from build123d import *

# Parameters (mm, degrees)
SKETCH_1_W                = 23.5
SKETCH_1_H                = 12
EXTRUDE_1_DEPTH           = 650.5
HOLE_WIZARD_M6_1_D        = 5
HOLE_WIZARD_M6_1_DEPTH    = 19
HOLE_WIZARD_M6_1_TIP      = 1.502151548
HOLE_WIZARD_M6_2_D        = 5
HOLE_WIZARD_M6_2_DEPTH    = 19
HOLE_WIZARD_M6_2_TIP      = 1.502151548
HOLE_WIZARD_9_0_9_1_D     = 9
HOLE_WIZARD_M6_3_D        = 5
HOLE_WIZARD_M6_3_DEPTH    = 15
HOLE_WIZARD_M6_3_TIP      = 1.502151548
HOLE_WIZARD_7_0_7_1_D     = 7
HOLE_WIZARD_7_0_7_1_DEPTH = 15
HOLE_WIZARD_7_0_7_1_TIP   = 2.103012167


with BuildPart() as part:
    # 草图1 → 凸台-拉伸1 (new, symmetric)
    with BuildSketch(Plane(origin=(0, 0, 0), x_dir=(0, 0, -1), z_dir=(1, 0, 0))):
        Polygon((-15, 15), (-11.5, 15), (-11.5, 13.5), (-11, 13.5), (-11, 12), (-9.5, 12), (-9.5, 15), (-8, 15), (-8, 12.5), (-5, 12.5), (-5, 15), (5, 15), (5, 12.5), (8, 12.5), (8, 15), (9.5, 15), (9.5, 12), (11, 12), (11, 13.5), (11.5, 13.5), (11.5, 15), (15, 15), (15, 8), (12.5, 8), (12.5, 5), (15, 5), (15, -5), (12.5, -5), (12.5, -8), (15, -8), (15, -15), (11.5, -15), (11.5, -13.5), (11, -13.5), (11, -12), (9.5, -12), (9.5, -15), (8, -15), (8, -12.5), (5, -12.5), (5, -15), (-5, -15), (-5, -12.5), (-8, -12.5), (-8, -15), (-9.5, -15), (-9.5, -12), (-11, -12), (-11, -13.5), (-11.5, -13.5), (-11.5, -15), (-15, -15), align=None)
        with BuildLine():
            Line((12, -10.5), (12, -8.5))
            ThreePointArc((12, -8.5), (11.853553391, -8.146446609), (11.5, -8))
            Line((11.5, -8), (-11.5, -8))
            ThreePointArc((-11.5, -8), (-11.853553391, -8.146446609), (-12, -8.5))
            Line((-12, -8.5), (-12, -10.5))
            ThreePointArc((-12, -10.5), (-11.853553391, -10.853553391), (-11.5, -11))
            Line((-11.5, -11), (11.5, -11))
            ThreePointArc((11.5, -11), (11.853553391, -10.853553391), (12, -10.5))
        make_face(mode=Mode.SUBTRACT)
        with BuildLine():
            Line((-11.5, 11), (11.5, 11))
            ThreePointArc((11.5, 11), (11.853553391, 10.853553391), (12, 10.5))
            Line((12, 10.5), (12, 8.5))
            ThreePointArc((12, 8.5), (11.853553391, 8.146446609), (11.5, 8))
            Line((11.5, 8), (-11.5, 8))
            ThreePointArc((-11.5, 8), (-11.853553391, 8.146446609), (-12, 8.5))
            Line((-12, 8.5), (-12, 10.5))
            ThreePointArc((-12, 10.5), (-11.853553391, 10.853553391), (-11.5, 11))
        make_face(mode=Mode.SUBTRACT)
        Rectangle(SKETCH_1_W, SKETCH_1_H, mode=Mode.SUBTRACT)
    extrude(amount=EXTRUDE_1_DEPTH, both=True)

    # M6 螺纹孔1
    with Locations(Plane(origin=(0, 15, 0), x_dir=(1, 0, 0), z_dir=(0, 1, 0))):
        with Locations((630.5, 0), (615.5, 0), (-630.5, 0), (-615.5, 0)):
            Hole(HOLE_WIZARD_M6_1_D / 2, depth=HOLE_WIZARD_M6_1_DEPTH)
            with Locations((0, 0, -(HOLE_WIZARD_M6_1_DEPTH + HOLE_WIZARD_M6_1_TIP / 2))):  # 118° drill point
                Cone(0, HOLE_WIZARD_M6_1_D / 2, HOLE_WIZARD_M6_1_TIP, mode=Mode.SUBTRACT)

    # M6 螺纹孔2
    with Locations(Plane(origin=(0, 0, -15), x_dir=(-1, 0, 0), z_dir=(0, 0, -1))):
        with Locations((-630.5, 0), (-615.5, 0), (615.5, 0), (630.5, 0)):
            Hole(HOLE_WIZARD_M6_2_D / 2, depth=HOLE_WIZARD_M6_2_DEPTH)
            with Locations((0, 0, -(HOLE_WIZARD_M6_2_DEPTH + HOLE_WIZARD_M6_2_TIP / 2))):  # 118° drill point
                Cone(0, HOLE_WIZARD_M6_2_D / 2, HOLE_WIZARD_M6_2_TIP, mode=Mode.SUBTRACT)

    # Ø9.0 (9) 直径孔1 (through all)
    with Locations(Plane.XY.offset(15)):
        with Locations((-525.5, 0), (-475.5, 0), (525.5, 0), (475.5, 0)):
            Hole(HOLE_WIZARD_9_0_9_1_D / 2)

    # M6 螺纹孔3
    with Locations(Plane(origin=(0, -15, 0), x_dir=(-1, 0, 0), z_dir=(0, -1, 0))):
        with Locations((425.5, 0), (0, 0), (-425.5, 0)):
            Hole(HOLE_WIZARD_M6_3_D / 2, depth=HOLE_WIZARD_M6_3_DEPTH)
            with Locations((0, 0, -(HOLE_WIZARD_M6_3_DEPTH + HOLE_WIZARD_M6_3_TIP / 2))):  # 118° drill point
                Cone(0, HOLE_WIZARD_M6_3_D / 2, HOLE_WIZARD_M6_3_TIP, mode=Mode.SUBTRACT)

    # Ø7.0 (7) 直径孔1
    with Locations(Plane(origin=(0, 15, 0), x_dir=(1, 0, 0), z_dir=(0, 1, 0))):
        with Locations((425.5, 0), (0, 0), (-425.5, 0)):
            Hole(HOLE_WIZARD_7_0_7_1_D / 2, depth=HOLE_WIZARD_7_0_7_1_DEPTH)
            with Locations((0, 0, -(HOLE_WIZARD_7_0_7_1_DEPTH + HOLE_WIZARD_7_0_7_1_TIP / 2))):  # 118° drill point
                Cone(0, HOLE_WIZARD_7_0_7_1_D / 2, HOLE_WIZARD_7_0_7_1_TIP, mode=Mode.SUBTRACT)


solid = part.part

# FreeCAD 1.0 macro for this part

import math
import FreeCAD as App
import Part
import Sketcher

V = App.Vector

doc = App.newDocument("Part")
body = doc.addObject("PartDesign::Body", "Body")

# Sketch on YZ plane
sketch1 = body.newObject("Sketcher::SketchObject", "Sketch")
sketch1.AttachmentSupport = (doc.getObject("YZ_Plane"), [""])
sketch1.MapMode = "FlatFace"
sketch1.addGeometry(Part.LineSegment(V(15, 11.5, 0), V(15, 15, 0)), False)
sketch1.addGeometry(Part.LineSegment(V(15, 15, 0), V(-15, 15, 0)), False)
sketch1.addGeometry(Part.LineSegment(V(-15, 15, 0), V(-15, 11.5, 0)), False)
sketch1.addGeometry(Part.LineSegment(V(-15, 11.5, 0), V(-13.5, 11.5, 0)), False)
sketch1.addGeometry(Part.LineSegment(V(-13.5, 11.5, 0), V(-13.5, 11, 0)), False)
sketch1.addGeometry(Part.LineSegment(V(-13.5, 11, 0), V(-12, 11, 0)), False)
sketch1.addGeometry(Part.LineSegment(V(-12, 11, 0), V(-12, 9.5, 0)), False)
sketch1.addGeometry(Part.LineSegment(V(-12, 9.5, 0), V(-15, 9.5, 0)), False)
sketch1.addGeometry(Part.LineSegment(V(-15, 9.5, 0), V(-15, 8, 0)), False)
sketch1.addGeometry(Part.LineSegment(V(-15, 8, 0), V(-12.5, 8, 0)), False)
sketch1.addGeometry(Part.LineSegment(V(-12.5, 8, 0), V(-12.5, 5, 0)), False)
sketch1.addGeometry(Part.LineSegment(V(-12.5, 5, 0), V(-15, 5, 0)), False)
sketch1.addGeometry(Part.LineSegment(V(-15, 5, 0), V(-15, -5, 0)), False)
sketch1.addGeometry(Part.LineSegment(V(-15, -5, 0), V(-12.5, -5, 0)), False)
sketch1.addGeometry(Part.LineSegment(V(-12.5, -5, 0), V(-12.5, -8, 0)), False)
sketch1.addGeometry(Part.LineSegment(V(-12.5, -8, 0), V(-15, -8, 0)), False)
sketch1.addGeometry(Part.LineSegment(V(-15, -8, 0), V(-15, -9.5, 0)), False)
sketch1.addGeometry(Part.LineSegment(V(-15, -9.5, 0), V(-12, -9.5, 0)), False)
sketch1.addGeometry(Part.LineSegment(V(-12, -9.5, 0), V(-12, -11, 0)), False)
sketch1.addGeometry(Part.LineSegment(V(-12, -11, 0), V(-13.5, -11, 0)), False)
sketch1.addGeometry(Part.LineSegment(V(-13.5, -11, 0), V(-13.5, -11.5, 0)), False)
sketch1.addGeometry(Part.LineSegment(V(-13.5, -11.5, 0), V(-15, -11.5, 0)), False)
sketch1.addGeometry(Part.LineSegment(V(-15, -11.5, 0), V(-15, -15, 0)), False)
sketch1.addGeometry(Part.LineSegment(V(-15, -15, 0), V(-8, -15, 0)), False)
sketch1.addGeometry(Part.LineSegment(V(-8, -15, 0), V(-8, -12.5, 0)), False)
sketch1.addGeometry(Part.LineSegment(V(-8, -12.5, 0), V(-5, -12.5, 0)), False)
sketch1.addGeometry(Part.LineSegment(V(-5, -12.5, 0), V(-5, -15, 0)), False)
sketch1.addGeometry(Part.LineSegment(V(-5, -15, 0), V(5, -15, 0)), False)
sketch1.addGeometry(Part.LineSegment(V(5, -15, 0), V(5, -12.5, 0)), False)
sketch1.addGeometry(Part.LineSegment(V(5, -12.5, 0), V(8, -12.5, 0)), False)
sketch1.addGeometry(Part.LineSegment(V(8, -12.5, 0), V(8, -15, 0)), False)
sketch1.addGeometry(Part.LineSegment(V(8, -15, 0), V(15, -15, 0)), False)
sketch1.addGeometry(Part.LineSegment(V(15, -15, 0), V(15, -11.5, 0)), False)
sketch1.addGeometry(Part.LineSegment(V(15, -11.5, 0), V(13.5, -11.5, 0)), False)
sketch1.addGeometry(Part.LineSegment(V(13.5, -11.5, 0), V(13.5, -11, 0)), False)
sketch1.addGeometry(Part.LineSegment(V(13.5, -11, 0), V(12, -11, 0)), False)
sketch1.addGeometry(Part.LineSegment(V(12, -11, 0), V(12, -9.5, 0)), False)
sketch1.addGeometry(Part.LineSegment(V(12, -9.5, 0), V(15, -9.5, 0)), False)
sketch1.addGeometry(Part.LineSegment(V(15, -9.5, 0), V(15, -8, 0)), False)
sketch1.addGeometry(Part.LineSegment(V(15, -8, 0), V(12.5, -8, 0)), False)
sketch1.addGeometry(Part.LineSegment(V(12.5, -8, 0), V(12.5, -5, 0)), False)
sketch1.addGeometry(Part.LineSegment(V(12.5, -5, 0), V(15, -5, 0)), False)
sketch1.addGeometry(Part.LineSegment(V(15, -5, 0), V(15, 5, 0)), False)
sketch1.addGeometry(Part.LineSegment(V(15, 5, 0), V(12.5, 5, 0)), False)
sketch1.addGeometry(Part.LineSegment(V(12.5, 5, 0), V(12.5, 8, 0)), False)
sketch1.addGeometry(Part.LineSegment(V(12.5, 8, 0), V(15, 8, 0)), False)
sketch1.addGeometry(Part.LineSegment(V(15, 8, 0), V(15, 9.5, 0)), False)
sketch1.addGeometry(Part.LineSegment(V(15, 9.5, 0), V(12, 9.5, 0)), False)
sketch1.addGeometry(Part.LineSegment(V(12, 9.5, 0), V(12, 11, 0)), False)
sketch1.addGeometry(Part.LineSegment(V(12, 11, 0), V(13.5, 11, 0)), False)
sketch1.addGeometry(Part.LineSegment(V(13.5, 11, 0), V(13.5, 11.5, 0)), False)
sketch1.addGeometry(Part.LineSegment(V(13.5, 11.5, 0), V(15, 11.5, 0)), False)
sketch1.addGeometry(Part.ArcOfCircle(Part.Circle(V(-10.5, -11.5, 0), V(0, 0, 1), 0.5), math.radians(180), math.radians(270)), False)
sketch1.addGeometry(Part.LineSegment(V(-11, -11.5, 0), V(-11, 11.5, 0)), False)
sketch1.addGeometry(Part.ArcOfCircle(Part.Circle(V(-10.5, 11.5, 0), V(0, 0, 1), 0.5), math.radians(90), math.radians(180)), False)
sketch1.addGeometry(Part.LineSegment(V(-10.5, 12, 0), V(-8.5, 12, 0)), False)
sketch1.addGeometry(Part.ArcOfCircle(Part.Circle(V(-8.5, 11.5, 0), V(0, 0, 1), 0.5), math.radians(0), math.radians(90)), False)
sketch1.addGeometry(Part.LineSegment(V(-8, 11.5, 0), V(-8, -11.5, 0)), False)
sketch1.addGeometry(Part.ArcOfCircle(Part.Circle(V(-8.5, -11.5, 0), V(0, 0, 1), 0.5), math.radians(-90), math.radians(0)), False)
sketch1.addGeometry(Part.LineSegment(V(-8.5, -12, 0), V(-10.5, -12, 0)), False)
sketch1.addGeometry(Part.LineSegment(V(-6, 11.75, 0), V(6, 11.75, 0)), False)
sketch1.addGeometry(Part.LineSegment(V(6, 11.75, 0), V(6, -11.75, 0)), False)
sketch1.addGeometry(Part.LineSegment(V(6, -11.75, 0), V(-6, -11.75, 0)), False)
sketch1.addGeometry(Part.LineSegment(V(-6, -11.75, 0), V(-6, 11.75, 0)), False)
sketch1.addGeometry(Part.LineSegment(V(11, 11.5, 0), V(11, -11.5, 0)), False)
sketch1.addGeometry(Part.ArcOfCircle(Part.Circle(V(10.5, -11.5, 0), V(0, 0, 1), 0.5), math.radians(-90), math.radians(0)), False)
sketch1.addGeometry(Part.LineSegment(V(10.5, -12, 0), V(8.5, -12, 0)), False)
sketch1.addGeometry(Part.ArcOfCircle(Part.Circle(V(8.5, -11.5, 0), V(0, 0, 1), 0.5), math.radians(180), math.radians(270)), False)
sketch1.addGeometry(Part.LineSegment(V(8, -11.5, 0), V(8, 11.5, 0)), False)
sketch1.addGeometry(Part.ArcOfCircle(Part.Circle(V(8.5, 11.5, 0), V(0, 0, 1), 0.5), math.radians(90), math.radians(180)), False)
sketch1.addGeometry(Part.LineSegment(V(8.5, 12, 0), V(10.5, 12, 0)), False)
sketch1.addGeometry(Part.ArcOfCircle(Part.Circle(V(10.5, 11.5, 0), V(0, 0, 1), 0.5), math.radians(0), math.radians(90)), False)
sketch1.addConstraint(Sketcher.Constraint("Coincident", 0, 2, 1, 1))
sketch1.addConstraint(Sketcher.Constraint("Coincident", 1, 2, 2, 1))
sketch1.addConstraint(Sketcher.Constraint("Coincident", 2, 2, 3, 1))
sketch1.addConstraint(Sketcher.Constraint("Coincident", 3, 2, 4, 1))
sketch1.addConstraint(Sketcher.Constraint("Coincident", 4, 2, 5, 1))
sketch1.addConstraint(Sketcher.Constraint("Coincident", 5, 2, 6, 1))
sketch1.addConstraint(Sketcher.Constraint("Coincident", 6, 2, 7, 1))
sketch1.addConstraint(Sketcher.Constraint("Coincident", 7, 2, 8, 1))
sketch1.addConstraint(Sketcher.Constraint("Coincident", 8, 2, 9, 1))
sketch1.addConstraint(Sketcher.Constraint("Coincident", 9, 2, 10, 1))
sketch1.addConstraint(Sketcher.Constraint("Coincident", 10, 2, 11, 1))
sketch1.addConstraint(Sketcher.Constraint("Coincident", 11, 2, 12, 1))
sketch1.addConstraint(Sketcher.Constraint("Coincident", 12, 2, 13, 1))
sketch1.addConstraint(Sketcher.Constraint("Coincident", 13, 2, 14, 1))
sketch1.addConstraint(Sketcher.Constraint("Coincident", 14, 2, 15, 1))
sketch1.addConstraint(Sketcher.Constraint("Coincident", 15, 2, 16, 1))
sketch1.addConstraint(Sketcher.Constraint("Coincident", 16, 2, 17, 1))
sketch1.addConstraint(Sketcher.Constraint("Coincident", 17, 2, 18, 1))
sketch1.addConstraint(Sketcher.Constraint("Coincident", 18, 2, 19, 1))
sketch1.addConstraint(Sketcher.Constraint("Coincident", 19, 2, 20, 1))
sketch1.addConstraint(Sketcher.Constraint("Coincident", 20, 2, 21, 1))
sketch1.addConstraint(Sketcher.Constraint("Coincident", 21, 2, 22, 1))
sketch1.addConstraint(Sketcher.Constraint("Coincident", 22, 2, 23, 1))
sketch1.addConstraint(Sketcher.Constraint("Coincident", 23, 2, 24, 1))
sketch1.addConstraint(Sketcher.Constraint("Coincident", 24, 2, 25, 1))
sketch1.addConstraint(Sketcher.Constraint("Coincident", 25, 2, 26, 1))
sketch1.addConstraint(Sketcher.Constraint("Coincident", 26, 2, 27, 1))
sketch1.addConstraint(Sketcher.Constraint("Coincident", 27, 2, 28, 1))
sketch1.addConstraint(Sketcher.Constraint("Coincident", 28, 2, 29, 1))
sketch1.addConstraint(Sketcher.Constraint("Coincident", 29, 2, 30, 1))
sketch1.addConstraint(Sketcher.Constraint("Coincident", 30, 2, 31, 1))
sketch1.addConstraint(Sketcher.Constraint("Coincident", 31, 2, 32, 1))
sketch1.addConstraint(Sketcher.Constraint("Coincident", 32, 2, 33, 1))
sketch1.addConstraint(Sketcher.Constraint("Coincident", 33, 2, 34, 1))
sketch1.addConstraint(Sketcher.Constraint("Coincident", 34, 2, 35, 1))
sketch1.addConstraint(Sketcher.Constraint("Coincident", 35, 2, 36, 1))
sketch1.addConstraint(Sketcher.Constraint("Coincident", 36, 2, 37, 1))
sketch1.addConstraint(Sketcher.Constraint("Coincident", 37, 2, 38, 1))
sketch1.addConstraint(Sketcher.Constraint("Coincident", 38, 2, 39, 1))
sketch1.addConstraint(Sketcher.Constraint("Coincident", 39, 2, 40, 1))
sketch1.addConstraint(Sketcher.Constraint("Coincident", 40, 2, 41, 1))
sketch1.addConstraint(Sketcher.Constraint("Coincident", 41, 2, 42, 1))
sketch1.addConstraint(Sketcher.Constraint("Coincident", 42, 2, 43, 1))
sketch1.addConstraint(Sketcher.Constraint("Coincident", 43, 2, 44, 1))
sketch1.addConstraint(Sketcher.Constraint("Coincident", 44, 2, 45, 1))
sketch1.addConstraint(Sketcher.Constraint("Coincident", 45, 2, 46, 1))
sketch1.addConstraint(Sketcher.Constraint("Coincident", 46, 2, 47, 1))
sketch1.addConstraint(Sketcher.Constraint("Coincident", 47, 2, 48, 1))
sketch1.addConstraint(Sketcher.Constraint("Coincident", 48, 2, 49, 1))
sketch1.addConstraint(Sketcher.Constraint("Coincident", 49, 2, 50, 1))
sketch1.addConstraint(Sketcher.Constraint("Coincident", 50, 2, 51, 1))
sketch1.addConstraint(Sketcher.Constraint("Coincident", 51, 2, 0, 1))
sketch1.addConstraint(Sketcher.Constraint("Tangent", 52, 1, 53, 1))
sketch1.addConstraint(Sketcher.Constraint("Tangent", 53, 2, 54, 2))
sketch1.addConstraint(Sketcher.Constraint("Tangent", 54, 1, 55, 1))
sketch1.addConstraint(Sketcher.Constraint("Tangent", 55, 2, 56, 2))
sketch1.addConstraint(Sketcher.Constraint("Tangent", 56, 1, 57, 1))
sketch1.addConstraint(Sketcher.Constraint("Tangent", 57, 2, 58, 2))
sketch1.addConstraint(Sketcher.Constraint("Tangent", 58, 1, 59, 1))
sketch1.addConstraint(Sketcher.Constraint("Tangent", 59, 2, 52, 2))
sketch1.addConstraint(Sketcher.Constraint("Coincident", 60, 2, 61, 1))
sketch1.addConstraint(Sketcher.Constraint("Coincident", 61, 2, 62, 1))
sketch1.addConstraint(Sketcher.Constraint("Coincident", 62, 2, 63, 1))
sketch1.addConstraint(Sketcher.Constraint("Coincident", 63, 2, 60, 1))
sketch1.addConstraint(Sketcher.Constraint("Tangent", 64, 2, 65, 2))
sketch1.addConstraint(Sketcher.Constraint("Tangent", 65, 1, 66, 1))
sketch1.addConstraint(Sketcher.Constraint("Tangent", 66, 2, 67, 2))
sketch1.addConstraint(Sketcher.Constraint("Tangent", 67, 1, 68, 1))
sketch1.addConstraint(Sketcher.Constraint("Tangent", 68, 2, 69, 2))
sketch1.addConstraint(Sketcher.Constraint("Tangent", 69, 1, 70, 1))
sketch1.addConstraint(Sketcher.Constraint("Tangent", 70, 2, 71, 2))
sketch1.addConstraint(Sketcher.Constraint("Tangent", 71, 1, 64, 1))
sketch1.addConstraint(Sketcher.Constraint("Vertical", 0))
sketch1.addConstraint(Sketcher.Constraint("Horizontal", 1))
sketch1.addConstraint(Sketcher.Constraint("Vertical", 2))
sketch1.addConstraint(Sketcher.Constraint("Horizontal", 3))
sketch1.addConstraint(Sketcher.Constraint("Vertical", 4))
sketch1.addConstraint(Sketcher.Constraint("Horizontal", 5))
sketch1.addConstraint(Sketcher.Constraint("Vertical", 6))
sketch1.addConstraint(Sketcher.Constraint("Horizontal", 7))
sketch1.addConstraint(Sketcher.Constraint("Vertical", 8))
sketch1.addConstraint(Sketcher.Constraint("Horizontal", 9))
sketch1.addConstraint(Sketcher.Constraint("Vertical", 10))
sketch1.addConstraint(Sketcher.Constraint("Horizontal", 11))
sketch1.addConstraint(Sketcher.Constraint("Vertical", 12))
sketch1.addConstraint(Sketcher.Constraint("Horizontal", 13))
sketch1.addConstraint(Sketcher.Constraint("Vertical", 14))
sketch1.addConstraint(Sketcher.Constraint("Horizontal", 15))
sketch1.addConstraint(Sketcher.Constraint("Vertical", 16))
sketch1.addConstraint(Sketcher.Constraint("Horizontal", 17))
sketch1.addConstraint(Sketcher.Constraint("Vertical", 18))
sketch1.addConstraint(Sketcher.Constraint("Horizontal", 19))
sketch1.addConstraint(Sketcher.Constraint("Vertical", 20))
sketch1.addConstraint(Sketcher.Constraint("Horizontal", 21))
sketch1.addConstraint(Sketcher.Constraint("Vertical", 22))
sketch1.addConstraint(Sketcher.Constraint("Horizontal", 23))
sketch1.addConstraint(Sketcher.Constraint("Vertical", 24))
sketch1.addConstraint(Sketcher.Constraint("Horizontal", 25))
sketch1.addConstraint(Sketcher.Constraint("Vertical", 26))
sketch1.addConstraint(Sketcher.Constraint("Horizontal", 27))
sketch1.addConstraint(Sketcher.Constraint("Vertical", 28))
sketch1.addConstraint(Sketcher.Constraint("Horizontal", 29))
sketch1.addConstraint(Sketcher.Constraint("Vertical", 30))
sketch1.addConstraint(Sketcher.Constraint("Horizontal", 31))
sketch1.addConstraint(Sketcher.Constraint("Vertical", 32))
sketch1.addConstraint(Sketcher.Constraint("Horizontal", 33))
sketch1.addConstraint(Sketcher.Constraint("Vertical", 34))
sketch1.addConstraint(Sketcher.Constraint("Horizontal", 35))
sketch1.addConstraint(Sketcher.Constraint("Vertical", 36))
sketch1.addConstraint(Sketcher.Constraint("Horizontal", 37))
sketch1.addConstraint(Sketcher.Constraint("Vertical", 38))
sketch1.addConstraint(Sketcher.Constraint("Horizontal", 39))
sketch1.addConstraint(Sketcher.Constraint("Vertical", 40))
sketch1.addConstraint(Sketcher.Constraint("Horizontal", 41))
sketch1.addConstraint(Sketcher.Constraint("Vertical", 42))
sketch1.addConstraint(Sketcher.Constraint("Horizontal", 43))
sketch1.addConstraint(Sketcher.Constraint("Vertical", 44))
sketch1.addConstraint(Sketcher.Constraint("Horizontal", 45))
sketch1.addConstraint(Sketcher.Constraint("Vertical", 46))
sketch1.addConstraint(Sketcher.Constraint("Horizontal", 47))
sketch1.addConstraint(Sketcher.Constraint("Vertical", 48))
sketch1.addConstraint(Sketcher.Constraint("Horizontal", 49))
sketch1.addConstraint(Sketcher.Constraint("Vertical", 50))
sketch1.addConstraint(Sketcher.Constraint("Horizontal", 51))
sketch1.addConstraint(Sketcher.Constraint("Vertical", 53))
sketch1.addConstraint(Sketcher.Constraint("Horizontal", 55))
sketch1.addConstraint(Sketcher.Constraint("Vertical", 57))
sketch1.addConstraint(Sketcher.Constraint("Horizontal", 59))
sketch1.addConstraint(Sketcher.Constraint("Horizontal", 60))
sketch1.addConstraint(Sketcher.Constraint("Vertical", 61))
sketch1.addConstraint(Sketcher.Constraint("Horizontal", 62))
sketch1.addConstraint(Sketcher.Constraint("Vertical", 63))
sketch1.addConstraint(Sketcher.Constraint("Vertical", 64))
sketch1.addConstraint(Sketcher.Constraint("Horizontal", 66))
sketch1.addConstraint(Sketcher.Constraint("Vertical", 68))
sketch1.addConstraint(Sketcher.Constraint("Horizontal", 70))
sketch1.addConstraint(Sketcher.Constraint("Equal", 52, 54))
sketch1.addConstraint(Sketcher.Constraint("Equal", 54, 56))
sketch1.addConstraint(Sketcher.Constraint("Equal", 56, 58))
sketch1.addConstraint(Sketcher.Constraint("Equal", 58, 65))
sketch1.addConstraint(Sketcher.Constraint("Equal", 65, 67))
sketch1.addConstraint(Sketcher.Constraint("Equal", 67, 69))
sketch1.addConstraint(Sketcher.Constraint("Equal", 69, 71))
sketch1.addConstraint(Sketcher.Constraint("Symmetric", 54, 3, 65, 3, -1, 1))
sketch1.addConstraint(Sketcher.Constraint("Symmetric", 58, 3, 69, 3, -1, 1))
sketch1.addConstraint(Sketcher.Constraint("Symmetric", 0, 2, 22, 2, -1, 1))
sketch1.addConstraint(Sketcher.Constraint("Symmetric", 1, 2, 31, 2, -1, 1))
sketch1.addConstraint(Sketcher.Constraint("Symmetric", 3, 2, 33, 2, -1, 1))
sketch1.addConstraint(Sketcher.Constraint("Symmetric", 5, 2, 35, 2, -1, 1))
sketch1.addConstraint(Sketcher.Constraint("Symmetric", 7, 2, 37, 2, -1, 1))
sketch1.addConstraint(Sketcher.Constraint("Symmetric", 9, 2, 39, 2, -1, 1))
sketch1.addConstraint(Sketcher.Constraint("Symmetric", 11, 2, 41, 2, -1, 1))
sketch1.addConstraint(Sketcher.Constraint("Symmetric", 13, 2, 43, 2, -1, 1))
sketch1.addConstraint(Sketcher.Constraint("Symmetric", 15, 2, 45, 2, -1, 1))
sketch1.addConstraint(Sketcher.Constraint("Symmetric", 17, 2, 47, 2, -1, 1))
sketch1.addConstraint(Sketcher.Constraint("Symmetric", 19, 2, 49, 2, -1, 1))
sketch1.addConstraint(Sketcher.Constraint("Symmetric", 60, 2, 62, 2, -1, 1))
sketch1.addConstraint(Sketcher.Constraint("Symmetric", 25, 2, 28, 2, -2))
sketch1.addConstraint(Sketcher.Constraint("Symmetric", 21, 2, 32, 2, -2))
sketch1.addConstraint(Sketcher.Constraint("Symmetric", 19, 2, 34, 2, -2))
sketch1.addConstraint(Sketcher.Constraint("Symmetric", 17, 2, 36, 2, -2))
sketch1.addConstraint(Sketcher.Constraint("Symmetric", 15, 2, 38, 2, -2))
sketch1.addConstraint(Sketcher.Constraint("Symmetric", 13, 2, 40, 2, -2))
sketch1.addConstraint(Sketcher.Constraint("Horizontal", 58, 3, 65, 3))
sketch1.addConstraint(Sketcher.Constraint("Horizontal", 71, 3, 2, 2))
sketch1.addConstraint(Sketcher.Constraint("Horizontal", 23, 2, 26, 2))
sketch1.addConstraint(Sketcher.Constraint("Horizontal", 3, 2, 50, 2))
sketch1.addConstraint(Sketcher.Constraint("Vertical", 2, 2, 7, 2))
sketch1.addConstraint(Sketcher.Constraint("Vertical", 8, 2, 11, 2))
sketch1.addConstraint(Sketcher.Constraint("Vertical", 24, 2, 56, 1))
sketch1.addConstraint(Sketcher.Constraint("Vertical", 30, 2, 67, 1))
sketch1.addConstraint(Sketcher.Constraint("Equal", 3, 5))
sketch1.addConstraint(Sketcher.Constraint("Equal", 17, 25))
sketch1.addConstraint(Sketcher.Constraint("Equal", 51, 6))
sketch1.addConstraint(Sketcher.Constraint("Equal", 6, 8))
sketch1.addConstraint(Sketcher.Constraint("Equal", 47, 10))
sketch1.addConstraint(Sketcher.Constraint("Equal", 27, 12))
sketch1.addConstraint(Sketcher.Constraint("Equal", 45, 24))
sketch1.addConstraint(Sketcher.Constraint("Radius", 52, 0.5))
sketch1.addConstraint(Sketcher.Constraint("DistanceX", 1, 2, 1, 1, 30.0))
sketch1.addConstraint(Sketcher.Constraint("DistanceX", 7, 2, 7, 1, 3.0))
sketch1.addConstraint(Sketcher.Constraint("DistanceX", 23, 1, 23, 2, 7.0))
sketch1.addConstraint(Sketcher.Constraint("DistanceX", 55, 1, 55, 2, 2.0))
sketch1.addConstraint(Sketcher.Constraint("DistanceX", 60, 1, 60, 2, 12.0))
sketch1.addConstraint(Sketcher.Constraint("DistanceY", 53, 1, 53, 2, 23.0))
sketch1.addConstraint(Sketcher.Constraint("DistanceX", 9, 1, 9, 2, 2.5))
sketch1.addConstraint(Sketcher.Constraint("DistanceY", 0, 1, 0, 2, 3.5))
sketch1.addConstraint(Sketcher.Constraint("DistanceY", 61, 2, 61, 1, 23.5))
pad1 = body.newObject("PartDesign::Pad", "Pad")
pad1.Profile = sketch1
pad1.Length = 1301
pad1.Midplane = True

# Sketch on XZ plane
sketch2 = body.newObject("Sketcher::SketchObject", "Sketch001")
sketch2.AttachmentSupport = (doc.getObject("XZ_Plane"), [""])
sketch2.MapMode = "FlatFace"
sketch2.AttachmentOffset = App.Placement(V(0, 0, -15), App.Rotation())
sketch2.addGeometry(Part.Circle(V(630.5, 0, 0), V(0, 0, 1), 2.5), False)
sketch2.addGeometry(Part.Circle(V(615.5, 0, 0), V(0, 0, 1), 2.5), False)
sketch2.addGeometry(Part.Circle(V(-630.5, 0, 0), V(0, 0, 1), 2.5), False)
sketch2.addGeometry(Part.Circle(V(-615.5, 0, 0), V(0, 0, 1), 2.5), False)
sketch2.addConstraint(Sketcher.Constraint("Equal", 0, 1))
sketch2.addConstraint(Sketcher.Constraint("Equal", 1, 2))
sketch2.addConstraint(Sketcher.Constraint("Equal", 2, 3))
sketch2.addConstraint(Sketcher.Constraint("Symmetric", 0, 3, 2, 3, -1, 1))
sketch2.addConstraint(Sketcher.Constraint("Symmetric", 1, 3, 3, 3, -1, 1))
sketch2.addConstraint(Sketcher.Constraint("PointOnObject", 0, 3, -1))
sketch2.addConstraint(Sketcher.Constraint("PointOnObject", 1, 3, -1))
sketch2.addConstraint(Sketcher.Constraint("Diameter", 0, 5.0))
sketch2.addConstraint(Sketcher.Constraint("DistanceX", 1, 3, 0, 3, 15.0))
sketch2.addConstraint(Sketcher.Constraint("DistanceX", 2, 3, 1, 3, 1246.0))
doc.recompute()
hole = body.newObject("PartDesign::Hole", "Hole")
hole.Profile = sketch2
hole.ThreadType = "None"
hole.Diameter = 5
hole.DepthType = "Dimension"
hole.Depth = 19
hole.DrillPoint = "Angled"
hole.DrillPointAngle = 118
hole.Reversed = True

# Sketch on XY plane
sketch3 = body.newObject("Sketcher::SketchObject", "Sketch002")
sketch3.AttachmentSupport = (doc.getObject("XY_Plane"), [""])
sketch3.MapMode = "FlatFace"
sketch3.AttachmentOffset = App.Placement(V(0, 0, -15), App.Rotation())
sketch3.addGeometry(Part.Circle(V(630.5, 0, 0), V(0, 0, 1), 2.5), False)
sketch3.addGeometry(Part.Circle(V(615.5, 0, 0), V(0, 0, 1), 2.5), False)
sketch3.addGeometry(Part.Circle(V(-615.5, 0, 0), V(0, 0, 1), 2.5), False)
sketch3.addGeometry(Part.Circle(V(-630.5, 0, 0), V(0, 0, 1), 2.5), False)
sketch3.addConstraint(Sketcher.Constraint("Equal", 0, 1))
sketch3.addConstraint(Sketcher.Constraint("Equal", 1, 2))
sketch3.addConstraint(Sketcher.Constraint("Equal", 2, 3))
sketch3.addConstraint(Sketcher.Constraint("Symmetric", 1, 3, 2, 3, -1, 1))
sketch3.addConstraint(Sketcher.Constraint("Symmetric", 0, 3, 3, 3, -1, 1))
sketch3.addConstraint(Sketcher.Constraint("PointOnObject", 0, 3, -1))
sketch3.addConstraint(Sketcher.Constraint("PointOnObject", 1, 3, -1))
sketch3.addConstraint(Sketcher.Constraint("Diameter", 0, 5.0))
sketch3.addConstraint(Sketcher.Constraint("DistanceX", 1, 3, 0, 3, 15.0))
sketch3.addConstraint(Sketcher.Constraint("DistanceX", 2, 3, 1, 3, 1231.0))
doc.recompute()
hole2 = body.newObject("PartDesign::Hole", "Hole001")
hole2.Profile = sketch3
hole2.ThreadType = "None"
hole2.Diameter = 5
hole2.DepthType = "Dimension"
hole2.Depth = 19
hole2.DrillPoint = "Angled"
hole2.DrillPointAngle = 118
hole2.Reversed = True

# Sketch on XY plane
sketch4 = body.newObject("Sketcher::SketchObject", "Sketch003")
sketch4.AttachmentSupport = (doc.getObject("XY_Plane"), [""])
sketch4.MapMode = "FlatFace"
sketch4.AttachmentOffset = App.Placement(V(0, 0, 15), App.Rotation())
sketch4.addGeometry(Part.Circle(V(-525.5, 0, 0), V(0, 0, 1), 4.5), False)
sketch4.addGeometry(Part.Circle(V(-475.5, 0, 0), V(0, 0, 1), 4.5), False)
sketch4.addGeometry(Part.Circle(V(525.5, 0, 0), V(0, 0, 1), 4.5), False)
sketch4.addGeometry(Part.Circle(V(475.5, 0, 0), V(0, 0, 1), 4.5), False)
sketch4.addConstraint(Sketcher.Constraint("Equal", 0, 1))
sketch4.addConstraint(Sketcher.Constraint("Equal", 1, 2))
sketch4.addConstraint(Sketcher.Constraint("Equal", 2, 3))
sketch4.addConstraint(Sketcher.Constraint("Symmetric", 0, 3, 2, 3, -1, 1))
sketch4.addConstraint(Sketcher.Constraint("Symmetric", 1, 3, 3, 3, -1, 1))
sketch4.addConstraint(Sketcher.Constraint("PointOnObject", 0, 3, -1))
sketch4.addConstraint(Sketcher.Constraint("PointOnObject", 1, 3, -1))
sketch4.addConstraint(Sketcher.Constraint("Diameter", 0, 9.0))
sketch4.addConstraint(Sketcher.Constraint("DistanceX", 0, 3, 1, 3, 50.0))
sketch4.addConstraint(Sketcher.Constraint("DistanceX", 1, 3, 2, 3, 1001.0))
doc.recompute()
hole3 = body.newObject("PartDesign::Hole", "Hole002")
hole3.Profile = sketch4
hole3.ThreadType = "None"
hole3.Diameter = 9
hole3.DepthType = "ThroughAll"

# Sketch on XZ plane
sketch5 = body.newObject("Sketcher::SketchObject", "Sketch004")
sketch5.AttachmentSupport = (doc.getObject("XZ_Plane"), [""])
sketch5.MapMode = "FlatFace"
sketch5.AttachmentOffset = App.Placement(V(0, 0, 15), App.Rotation())
sketch5.addGeometry(Part.Circle(V(-425.5, 0, 0), V(0, 0, 1), 2.5), False)
sketch5.addGeometry(Part.Circle(V(0, 0, 0), V(0, 0, 1), 2.5), False)
sketch5.addGeometry(Part.Circle(V(425.5, 0, 0), V(0, 0, 1), 2.5), False)
sketch5.addConstraint(Sketcher.Constraint("Coincident", 1, 3, -1, 1))
sketch5.addConstraint(Sketcher.Constraint("Equal", 0, 1))
sketch5.addConstraint(Sketcher.Constraint("Equal", 1, 2))
sketch5.addConstraint(Sketcher.Constraint("Symmetric", 0, 3, 2, 3, -1, 1))
sketch5.addConstraint(Sketcher.Constraint("PointOnObject", 0, 3, -1))
sketch5.addConstraint(Sketcher.Constraint("Diameter", 0, 5.0))
sketch5.addConstraint(Sketcher.Constraint("DistanceX", 0, 3, 2, 3, 851.0))
doc.recompute()
hole4 = body.newObject("PartDesign::Hole", "Hole003")
hole4.Profile = sketch5
hole4.ThreadType = "None"
hole4.Diameter = 5
hole4.DepthType = "Dimension"
hole4.Depth = 15
hole4.DrillPoint = "Angled"
hole4.DrillPointAngle = 118

# Sketch on XZ plane
sketch6 = body.newObject("Sketcher::SketchObject", "Sketch005")
sketch6.AttachmentSupport = (doc.getObject("XZ_Plane"), [""])
sketch6.MapMode = "FlatFace"
sketch6.AttachmentOffset = App.Placement(V(0, 0, -15), App.Rotation())
sketch6.addGeometry(Part.Circle(V(425.5, 0, 0), V(0, 0, 1), 3.5), False)
sketch6.addGeometry(Part.Circle(V(0, 0, 0), V(0, 0, 1), 3.5), False)
sketch6.addGeometry(Part.Circle(V(-425.5, 0, 0), V(0, 0, 1), 3.5), False)
sketch6.addConstraint(Sketcher.Constraint("Coincident", 1, 3, -1, 1))
sketch6.addConstraint(Sketcher.Constraint("Equal", 0, 1))
sketch6.addConstraint(Sketcher.Constraint("Equal", 1, 2))
sketch6.addConstraint(Sketcher.Constraint("Symmetric", 0, 3, 2, 3, -1, 1))
sketch6.addConstraint(Sketcher.Constraint("PointOnObject", 0, 3, -1))
sketch6.addConstraint(Sketcher.Constraint("Diameter", 0, 7.0))
sketch6.addConstraint(Sketcher.Constraint("DistanceX", 2, 3, 0, 3, 851.0))
doc.recompute()
hole5 = body.newObject("PartDesign::Hole", "Hole004")
hole5.Profile = sketch6
hole5.ThreadType = "None"
hole5.Diameter = 7
hole5.DepthType = "Dimension"
hole5.Depth = 15
hole5.DrillPoint = "Angled"
hole5.DrillPointAngle = 118
hole5.Reversed = True

doc.recompute()
